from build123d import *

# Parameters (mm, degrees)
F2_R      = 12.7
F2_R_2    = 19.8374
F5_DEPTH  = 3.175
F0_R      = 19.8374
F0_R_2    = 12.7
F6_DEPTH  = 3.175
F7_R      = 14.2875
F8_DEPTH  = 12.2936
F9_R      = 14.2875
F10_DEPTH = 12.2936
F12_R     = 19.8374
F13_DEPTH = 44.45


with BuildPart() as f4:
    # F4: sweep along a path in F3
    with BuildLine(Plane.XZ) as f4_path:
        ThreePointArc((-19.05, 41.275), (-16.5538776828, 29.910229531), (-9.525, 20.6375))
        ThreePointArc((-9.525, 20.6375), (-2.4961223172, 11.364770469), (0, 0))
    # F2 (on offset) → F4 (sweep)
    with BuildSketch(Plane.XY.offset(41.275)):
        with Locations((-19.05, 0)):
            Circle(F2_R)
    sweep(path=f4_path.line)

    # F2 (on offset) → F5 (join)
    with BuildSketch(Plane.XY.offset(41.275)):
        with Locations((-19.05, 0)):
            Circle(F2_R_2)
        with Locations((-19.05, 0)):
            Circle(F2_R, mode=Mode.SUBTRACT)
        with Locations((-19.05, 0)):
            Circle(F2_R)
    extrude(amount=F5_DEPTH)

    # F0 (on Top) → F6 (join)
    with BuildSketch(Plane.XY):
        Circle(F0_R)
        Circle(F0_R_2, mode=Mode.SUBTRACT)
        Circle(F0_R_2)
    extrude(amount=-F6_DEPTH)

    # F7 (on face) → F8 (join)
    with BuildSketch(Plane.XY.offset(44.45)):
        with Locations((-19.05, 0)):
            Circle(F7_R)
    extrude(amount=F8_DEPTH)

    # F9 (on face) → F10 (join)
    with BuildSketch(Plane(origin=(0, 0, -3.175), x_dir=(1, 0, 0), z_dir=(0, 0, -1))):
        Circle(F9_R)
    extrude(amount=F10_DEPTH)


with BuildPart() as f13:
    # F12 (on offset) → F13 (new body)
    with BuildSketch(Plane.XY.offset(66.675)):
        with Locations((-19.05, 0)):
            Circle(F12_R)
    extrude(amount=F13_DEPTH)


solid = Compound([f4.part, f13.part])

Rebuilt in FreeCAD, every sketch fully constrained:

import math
import FreeCAD as App
import Part
import Sketcher
Q = App.Units.Quantity

doc = App.newDocument("Part")
params = doc.addObject("Spreadsheet::Sheet", "Params")
for row, (alias, value) in enumerate([
    ("sketch1_diameter", "1 in"),
    ("sketch3_diameter", "1.562 in"),
    ("pad1_length", "0.125 in"),
    ("sketch4_diameter", "1.562 in"),
    ("pad2_length", "0.125 in"),
    ("sketch5_diameter", "1.125 in"),
    ("pad3_length", "0.484 in"),
    ("sketch6_diameter", "1.125 in"),
    ("pad4_length", "0.484 in"),
    ("sketch7_diameter", "1.562 in"),
    ("pad5_length", "1.75 in"),
], start=1):
    params.set(f"A{row}", alias)
    params.set(f"B{row}", "=" + value)
    params.setAlias(f"B{row}", alias)

body = doc.addObject("PartDesign::Body", "Body")

# Sketch on XY plane
sketch1 = body.newObject("Sketcher::SketchObject", "Sketch")
sketch1.AttachmentSupport = (doc.getObject("XY_Plane"), [""])
sketch1.MapMode = "FlatFace"
sketch1.AttachmentOffset = App.Placement(App.Vector(0, 0, 1.625 * 25.4), App.Rotation())
sketch1.addGeometry(Part.Circle(App.Vector(-19, 0, 0), App.Vector(0, 0, 1), 13), False)
sketch1.addConstraint(Sketcher.Constraint("PointOnObject", 0, 3, -1))
sketch1.addConstraint(Sketcher.Constraint("Diameter", 0, Q("1 in")))
sketch1.addConstraint(Sketcher.Constraint("DistanceX", 0, 3, -1, 1, Q("0.75 in")))
sketch1.setExpression("Constraints[1]", "Params.sketch1_diameter")

# Sketch on XZ plane
sketch2 = body.newObject("Sketcher::SketchObject", "Sketch001")
sketch2.AttachmentSupport = (doc.getObject("XZ_Plane"), [""])
sketch2.MapMode = "FlatFace"
sketch2.addGeometry(Part.ArcOfCircle(Part.Circle(App.Vector(8, 41, 0), App.Vector(0, 0, 1), 27), math.radians(180), math.radians(230)), False)
sketch2.addGeometry(Part.ArcOfCircle(Part.Circle(App.Vector(-27, 0, 0), App.Vector(0, 0, 1), 27), math.radians(0), math.radians(50)), False)
sketch2.addConstraint(Sketcher.Constraint("Tangent", 0, 2, 1, 2))
sketch2.addConstraint(Sketcher.Constraint("Coincident", 1, 1, -1, 1))
sketch2.addConstraint(Sketcher.Constraint("Equal", 0, 1))
sketch2.addConstraint(Sketcher.Constraint("PointOnObject", 1, 3, -1))
sketch2.addConstraint(Sketcher.Constraint("DistanceX", 0, 1, -1, 1, Q("0.75 in")))
sketch2.addConstraint(Sketcher.Constraint("DistanceY", -1, 1, 0, 3, Q("1.625 in")))
sketch2.addConstraint(Sketcher.Constraint("DistanceY", -1, 1, 0, 1, Q("1.625 in")))
doc.recompute()

additivepipe = body.newObject("PartDesign::AdditivePipe", "AdditivePipe")
additivepipe.Profile = sketch1
additivepipe.Spine = (sketch2, ["Edge1", "Edge2"])

# Sketch on XY plane
sketch3 = body.newObject("Sketcher::SketchObject", "Sketch002")
sketch3.AttachmentSupport = (doc.getObject("XY_Plane"), [""])
sketch3.MapMode = "FlatFace"
sketch3.AttachmentOffset = App.Placement(App.Vector(0, 0, 1.625 * 25.4), App.Rotation())
sketch3.addGeometry(Part.Circle(App.Vector(-19, 0, 0), App.Vector(0, 0, 1), 20), False)
sketch3.addConstraint(Sketcher.Constraint("PointOnObject", 0, 3, -1))
sketch3.addConstraint(Sketcher.Constraint("Diameter", 0, Q("1.562 in")))
sketch3.addConstraint(Sketcher.Constraint("DistanceX", 0, 3, -1, 1, Q("0.75 in")))
sketch3.setExpression("Constraints[1]", "Params.sketch3_diameter")
pad1 = body.newObject("PartDesign::Pad", "Pad")
pad1.Profile = sketch3
pad1.setExpression("Length", "Params.pad1_length")

# Sketch on XY plane
sketch4 = body.newObject("Sketcher::SketchObject", "Sketch003")
sketch4.AttachmentSupport = (doc.getObject("XY_Plane"), [""])
sketch4.MapMode = "FlatFace"
sketch4.addGeometry(Part.Circle(App.Vector(0, 0, 0), App.Vector(0, 0, 1), 20), False)
sketch4.addConstraint(Sketcher.Constraint("Coincident", 0, 3, -1, 1))
sketch4.addConstraint(Sketcher.Constraint("Diameter", 0, Q("1.562 in")))
sketch4.setExpression("Constraints[1]", "Params.sketch4_diameter")
pad2 = body.newObject("PartDesign::Pad", "Pad001")
pad2.Profile = sketch4
pad2.setExpression("Length", "Params.pad2_length")
pad2.Reversed = True

# Sketch on XY plane
sketch5 = body.newObject("Sketcher::SketchObject", "Sketch004")
sketch5.AttachmentSupport = (doc.getObject("XY_Plane"), [""])
sketch5.MapMode = "FlatFace"
sketch5.AttachmentOffset = App.Placement(App.Vector(0, 0, 1.75 * 25.4), App.Rotation())
sketch5.addGeometry(Part.Circle(App.Vector(-19, 0, 0), App.Vector(0, 0, 1), 14), False)
sketch5.addConstraint(Sketcher.Constraint("PointOnObject", 0, 3, -1))
sketch5.addConstraint(Sketcher.Constraint("Diameter", 0, Q("1.125 in")))
sketch5.addConstraint(Sketcher.Constraint("DistanceX", 0, 3, -1, 1, Q("0.75 in")))
sketch5.setExpression("Constraints[1]", "Params.sketch5_diameter")
pad3 = body.newObject("PartDesign::Pad", "Pad002")
pad3.Profile = sketch5
pad3.setExpression("Length", "Params.pad3_length")

# Sketch on XY plane
sketch6 = body.newObject("Sketcher::SketchObject", "Sketch005")
sketch6.AttachmentSupport = (doc.getObject("XY_Plane"), [""])
sketch6.MapMode = "FlatFace"
sketch6.AttachmentOffset = App.Placement(App.Vector(0, 0, -0.125 * 25.4), App.Rotation())
sketch6.addGeometry(Part.Circle(App.Vector(0, 0, 0), App.Vector(0, 0, 1), 14), False)
sketch6.addConstraint(Sketcher.Constraint("Coincident", 0, 3, -1, 1))
sketch6.addConstraint(Sketcher.Constraint("Diameter", 0, Q("1.125 in")))
sketch6.setExpression("Constraints[1]", "Params.sketch6_diameter")
pad4 = body.newObject("PartDesign::Pad", "Pad003")
pad4.Profile = sketch6
pad4.setExpression("Length", "Params.pad4_length")
pad4.Reversed = True
body2 = doc.addObject("PartDesign::Body", "Body001")

# Sketch on XY plane
sketch7 = body2.newObject("Sketcher::SketchObject", "Sketch006")
sketch7.AttachmentSupport = (doc.getObject("XY_Plane001"), [""])
sketch7.MapMode = "FlatFace"
sketch7.AttachmentOffset = App.Placement(App.Vector(0, 0, 2.625 * 25.4), App.Rotation())
sketch7.addGeometry(Part.Circle(App.Vector(-19, 0, 0), App.Vector(0, 0, 1), 20), False)
sketch7.addConstraint(Sketcher.Constraint("PointOnObject", 0, 3, -1))
sketch7.addConstraint(Sketcher.Constraint("Diameter", 0, Q("1.562 in")))
sketch7.addConstraint(Sketcher.Constraint("DistanceX", 0, 3, -1, 1, Q("0.75 in")))
sketch7.setExpression("Constraints[1]", "Params.sketch7_diameter")
pad5 = body2.newObject("PartDesign::Pad", "Pad004")
pad5.Profile = sketch7
pad5.setExpression("Length", "Params.pad5_length")

doc.recompute()
